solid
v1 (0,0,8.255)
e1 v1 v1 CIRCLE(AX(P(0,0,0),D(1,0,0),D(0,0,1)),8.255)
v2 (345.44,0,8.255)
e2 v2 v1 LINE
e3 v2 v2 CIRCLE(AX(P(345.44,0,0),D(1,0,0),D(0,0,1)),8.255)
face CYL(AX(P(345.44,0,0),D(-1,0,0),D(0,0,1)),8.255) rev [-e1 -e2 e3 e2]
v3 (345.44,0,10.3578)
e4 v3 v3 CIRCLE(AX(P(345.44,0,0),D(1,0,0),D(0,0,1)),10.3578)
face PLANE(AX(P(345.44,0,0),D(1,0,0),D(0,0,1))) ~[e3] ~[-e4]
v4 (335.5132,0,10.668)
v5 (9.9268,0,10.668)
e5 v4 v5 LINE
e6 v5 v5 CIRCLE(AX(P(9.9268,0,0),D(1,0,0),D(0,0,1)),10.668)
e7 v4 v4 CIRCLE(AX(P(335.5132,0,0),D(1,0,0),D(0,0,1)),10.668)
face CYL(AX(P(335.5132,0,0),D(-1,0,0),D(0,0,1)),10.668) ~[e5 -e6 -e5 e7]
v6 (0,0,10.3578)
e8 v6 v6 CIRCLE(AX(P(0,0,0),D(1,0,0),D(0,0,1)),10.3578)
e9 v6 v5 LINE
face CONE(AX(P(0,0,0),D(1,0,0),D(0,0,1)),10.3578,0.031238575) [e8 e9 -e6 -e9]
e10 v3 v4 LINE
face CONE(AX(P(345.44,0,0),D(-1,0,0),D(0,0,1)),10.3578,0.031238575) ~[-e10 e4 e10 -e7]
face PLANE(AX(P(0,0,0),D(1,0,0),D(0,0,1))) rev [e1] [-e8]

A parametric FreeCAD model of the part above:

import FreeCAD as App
import Part
import Sketcher

V = App.Vector
Q = App.Units.Quantity

doc = App.newDocument("Part")
body = doc.addObject("PartDesign::Body", "Body")

# Sketch on XZ plane
sketch1 = body.newObject("Sketcher::SketchObject", "Sketch")
sketch1.AttachmentSupport = (doc.getObject("XZ_Plane"), [""])
sketch1.MapMode = "FlatFace"
sketch1.addGeometry(Part.LineSegment(V(345.44, 10.3578, 0), V(345.44, 8.255, 0)), False)
sketch1.addGeometry(Part.LineSegment(V(345.44, 8.255, 0), V(0, 8.255, 0)), False)
sketch1.addGeometry(Part.LineSegment(V(0, 8.255, 0), V(0, 10.3578, 0)), False)
sketch1.addGeometry(Part.LineSegment(V(0, 10.3578, 0), V(9.9268, 10.668, 0)), False)
sketch1.addGeometry(Part.LineSegment(V(9.9268, 10.668, 0), V(335.5132, 10.668, 0)), False)
sketch1.addGeometry(Part.LineSegment(V(335.5132, 10.668, 0), V(345.44, 10.3578, 0)), False)
sketch1.addConstraint(Sketcher.Constraint("Coincident", 0, 2, 1, 1))
sketch1.addConstraint(Sketcher.Constraint("Coincident", 1, 2, 2, 1))
sketch1.addConstraint(Sketcher.Constraint("Coincident", 2, 2, 3, 1))
sketch1.addConstraint(Sketcher.Constraint("Coincident", 3, 2, 4, 1))
sketch1.addConstraint(Sketcher.Constraint("Coincident", 4, 2, 5, 1))
sketch1.addConstraint(Sketcher.Constraint("Coincident", 5, 2, 0, 1))
sketch1.addConstraint(Sketcher.Constraint("Vertical", 0))
sketch1.addConstraint(Sketcher.Constraint("Horizontal", 1))
sketch1.addConstraint(Sketcher.Constraint("Vertical", 2))
sketch1.addConstraint(Sketcher.Constraint("Horizontal", 4))
sketch1.addConstraint(Sketcher.Constraint("PointOnObject", 1, 2, -2))
sketch1.addConstraint(Sketcher.Constraint("Horizontal", 2, 2, 5, 2))
sketch1.addConstraint(Sketcher.Constraint("Equal", 3, 5))
sketch1.addConstraint(Sketcher.Constraint("DistanceX", 1, 2, 1, 1, Q("13.6 in")))
sketch1.addConstraint(Sketcher.Constraint("Angle", 3, Q("1.7898 deg")))
sketch1.addConstraint(Sketcher.Constraint("DistanceY", -1, 1, 3, 2, Q("0.42 in")))
sketch1.addConstraint(Sketcher.Constraint("Distance", 3, Q("0.391 in")))
sketch1.addConstraint(Sketcher.Constraint("DistanceY", -1, 1, 0, 2, Q("0.325 in")))
revolution = body.newObject("PartDesign::Revolution", "Revolution")
revolution.Profile = sketch1
revolution.ReferenceAxis = (sketch1, ["H_Axis"])
revolution.Angle = 360

doc.recompute()
